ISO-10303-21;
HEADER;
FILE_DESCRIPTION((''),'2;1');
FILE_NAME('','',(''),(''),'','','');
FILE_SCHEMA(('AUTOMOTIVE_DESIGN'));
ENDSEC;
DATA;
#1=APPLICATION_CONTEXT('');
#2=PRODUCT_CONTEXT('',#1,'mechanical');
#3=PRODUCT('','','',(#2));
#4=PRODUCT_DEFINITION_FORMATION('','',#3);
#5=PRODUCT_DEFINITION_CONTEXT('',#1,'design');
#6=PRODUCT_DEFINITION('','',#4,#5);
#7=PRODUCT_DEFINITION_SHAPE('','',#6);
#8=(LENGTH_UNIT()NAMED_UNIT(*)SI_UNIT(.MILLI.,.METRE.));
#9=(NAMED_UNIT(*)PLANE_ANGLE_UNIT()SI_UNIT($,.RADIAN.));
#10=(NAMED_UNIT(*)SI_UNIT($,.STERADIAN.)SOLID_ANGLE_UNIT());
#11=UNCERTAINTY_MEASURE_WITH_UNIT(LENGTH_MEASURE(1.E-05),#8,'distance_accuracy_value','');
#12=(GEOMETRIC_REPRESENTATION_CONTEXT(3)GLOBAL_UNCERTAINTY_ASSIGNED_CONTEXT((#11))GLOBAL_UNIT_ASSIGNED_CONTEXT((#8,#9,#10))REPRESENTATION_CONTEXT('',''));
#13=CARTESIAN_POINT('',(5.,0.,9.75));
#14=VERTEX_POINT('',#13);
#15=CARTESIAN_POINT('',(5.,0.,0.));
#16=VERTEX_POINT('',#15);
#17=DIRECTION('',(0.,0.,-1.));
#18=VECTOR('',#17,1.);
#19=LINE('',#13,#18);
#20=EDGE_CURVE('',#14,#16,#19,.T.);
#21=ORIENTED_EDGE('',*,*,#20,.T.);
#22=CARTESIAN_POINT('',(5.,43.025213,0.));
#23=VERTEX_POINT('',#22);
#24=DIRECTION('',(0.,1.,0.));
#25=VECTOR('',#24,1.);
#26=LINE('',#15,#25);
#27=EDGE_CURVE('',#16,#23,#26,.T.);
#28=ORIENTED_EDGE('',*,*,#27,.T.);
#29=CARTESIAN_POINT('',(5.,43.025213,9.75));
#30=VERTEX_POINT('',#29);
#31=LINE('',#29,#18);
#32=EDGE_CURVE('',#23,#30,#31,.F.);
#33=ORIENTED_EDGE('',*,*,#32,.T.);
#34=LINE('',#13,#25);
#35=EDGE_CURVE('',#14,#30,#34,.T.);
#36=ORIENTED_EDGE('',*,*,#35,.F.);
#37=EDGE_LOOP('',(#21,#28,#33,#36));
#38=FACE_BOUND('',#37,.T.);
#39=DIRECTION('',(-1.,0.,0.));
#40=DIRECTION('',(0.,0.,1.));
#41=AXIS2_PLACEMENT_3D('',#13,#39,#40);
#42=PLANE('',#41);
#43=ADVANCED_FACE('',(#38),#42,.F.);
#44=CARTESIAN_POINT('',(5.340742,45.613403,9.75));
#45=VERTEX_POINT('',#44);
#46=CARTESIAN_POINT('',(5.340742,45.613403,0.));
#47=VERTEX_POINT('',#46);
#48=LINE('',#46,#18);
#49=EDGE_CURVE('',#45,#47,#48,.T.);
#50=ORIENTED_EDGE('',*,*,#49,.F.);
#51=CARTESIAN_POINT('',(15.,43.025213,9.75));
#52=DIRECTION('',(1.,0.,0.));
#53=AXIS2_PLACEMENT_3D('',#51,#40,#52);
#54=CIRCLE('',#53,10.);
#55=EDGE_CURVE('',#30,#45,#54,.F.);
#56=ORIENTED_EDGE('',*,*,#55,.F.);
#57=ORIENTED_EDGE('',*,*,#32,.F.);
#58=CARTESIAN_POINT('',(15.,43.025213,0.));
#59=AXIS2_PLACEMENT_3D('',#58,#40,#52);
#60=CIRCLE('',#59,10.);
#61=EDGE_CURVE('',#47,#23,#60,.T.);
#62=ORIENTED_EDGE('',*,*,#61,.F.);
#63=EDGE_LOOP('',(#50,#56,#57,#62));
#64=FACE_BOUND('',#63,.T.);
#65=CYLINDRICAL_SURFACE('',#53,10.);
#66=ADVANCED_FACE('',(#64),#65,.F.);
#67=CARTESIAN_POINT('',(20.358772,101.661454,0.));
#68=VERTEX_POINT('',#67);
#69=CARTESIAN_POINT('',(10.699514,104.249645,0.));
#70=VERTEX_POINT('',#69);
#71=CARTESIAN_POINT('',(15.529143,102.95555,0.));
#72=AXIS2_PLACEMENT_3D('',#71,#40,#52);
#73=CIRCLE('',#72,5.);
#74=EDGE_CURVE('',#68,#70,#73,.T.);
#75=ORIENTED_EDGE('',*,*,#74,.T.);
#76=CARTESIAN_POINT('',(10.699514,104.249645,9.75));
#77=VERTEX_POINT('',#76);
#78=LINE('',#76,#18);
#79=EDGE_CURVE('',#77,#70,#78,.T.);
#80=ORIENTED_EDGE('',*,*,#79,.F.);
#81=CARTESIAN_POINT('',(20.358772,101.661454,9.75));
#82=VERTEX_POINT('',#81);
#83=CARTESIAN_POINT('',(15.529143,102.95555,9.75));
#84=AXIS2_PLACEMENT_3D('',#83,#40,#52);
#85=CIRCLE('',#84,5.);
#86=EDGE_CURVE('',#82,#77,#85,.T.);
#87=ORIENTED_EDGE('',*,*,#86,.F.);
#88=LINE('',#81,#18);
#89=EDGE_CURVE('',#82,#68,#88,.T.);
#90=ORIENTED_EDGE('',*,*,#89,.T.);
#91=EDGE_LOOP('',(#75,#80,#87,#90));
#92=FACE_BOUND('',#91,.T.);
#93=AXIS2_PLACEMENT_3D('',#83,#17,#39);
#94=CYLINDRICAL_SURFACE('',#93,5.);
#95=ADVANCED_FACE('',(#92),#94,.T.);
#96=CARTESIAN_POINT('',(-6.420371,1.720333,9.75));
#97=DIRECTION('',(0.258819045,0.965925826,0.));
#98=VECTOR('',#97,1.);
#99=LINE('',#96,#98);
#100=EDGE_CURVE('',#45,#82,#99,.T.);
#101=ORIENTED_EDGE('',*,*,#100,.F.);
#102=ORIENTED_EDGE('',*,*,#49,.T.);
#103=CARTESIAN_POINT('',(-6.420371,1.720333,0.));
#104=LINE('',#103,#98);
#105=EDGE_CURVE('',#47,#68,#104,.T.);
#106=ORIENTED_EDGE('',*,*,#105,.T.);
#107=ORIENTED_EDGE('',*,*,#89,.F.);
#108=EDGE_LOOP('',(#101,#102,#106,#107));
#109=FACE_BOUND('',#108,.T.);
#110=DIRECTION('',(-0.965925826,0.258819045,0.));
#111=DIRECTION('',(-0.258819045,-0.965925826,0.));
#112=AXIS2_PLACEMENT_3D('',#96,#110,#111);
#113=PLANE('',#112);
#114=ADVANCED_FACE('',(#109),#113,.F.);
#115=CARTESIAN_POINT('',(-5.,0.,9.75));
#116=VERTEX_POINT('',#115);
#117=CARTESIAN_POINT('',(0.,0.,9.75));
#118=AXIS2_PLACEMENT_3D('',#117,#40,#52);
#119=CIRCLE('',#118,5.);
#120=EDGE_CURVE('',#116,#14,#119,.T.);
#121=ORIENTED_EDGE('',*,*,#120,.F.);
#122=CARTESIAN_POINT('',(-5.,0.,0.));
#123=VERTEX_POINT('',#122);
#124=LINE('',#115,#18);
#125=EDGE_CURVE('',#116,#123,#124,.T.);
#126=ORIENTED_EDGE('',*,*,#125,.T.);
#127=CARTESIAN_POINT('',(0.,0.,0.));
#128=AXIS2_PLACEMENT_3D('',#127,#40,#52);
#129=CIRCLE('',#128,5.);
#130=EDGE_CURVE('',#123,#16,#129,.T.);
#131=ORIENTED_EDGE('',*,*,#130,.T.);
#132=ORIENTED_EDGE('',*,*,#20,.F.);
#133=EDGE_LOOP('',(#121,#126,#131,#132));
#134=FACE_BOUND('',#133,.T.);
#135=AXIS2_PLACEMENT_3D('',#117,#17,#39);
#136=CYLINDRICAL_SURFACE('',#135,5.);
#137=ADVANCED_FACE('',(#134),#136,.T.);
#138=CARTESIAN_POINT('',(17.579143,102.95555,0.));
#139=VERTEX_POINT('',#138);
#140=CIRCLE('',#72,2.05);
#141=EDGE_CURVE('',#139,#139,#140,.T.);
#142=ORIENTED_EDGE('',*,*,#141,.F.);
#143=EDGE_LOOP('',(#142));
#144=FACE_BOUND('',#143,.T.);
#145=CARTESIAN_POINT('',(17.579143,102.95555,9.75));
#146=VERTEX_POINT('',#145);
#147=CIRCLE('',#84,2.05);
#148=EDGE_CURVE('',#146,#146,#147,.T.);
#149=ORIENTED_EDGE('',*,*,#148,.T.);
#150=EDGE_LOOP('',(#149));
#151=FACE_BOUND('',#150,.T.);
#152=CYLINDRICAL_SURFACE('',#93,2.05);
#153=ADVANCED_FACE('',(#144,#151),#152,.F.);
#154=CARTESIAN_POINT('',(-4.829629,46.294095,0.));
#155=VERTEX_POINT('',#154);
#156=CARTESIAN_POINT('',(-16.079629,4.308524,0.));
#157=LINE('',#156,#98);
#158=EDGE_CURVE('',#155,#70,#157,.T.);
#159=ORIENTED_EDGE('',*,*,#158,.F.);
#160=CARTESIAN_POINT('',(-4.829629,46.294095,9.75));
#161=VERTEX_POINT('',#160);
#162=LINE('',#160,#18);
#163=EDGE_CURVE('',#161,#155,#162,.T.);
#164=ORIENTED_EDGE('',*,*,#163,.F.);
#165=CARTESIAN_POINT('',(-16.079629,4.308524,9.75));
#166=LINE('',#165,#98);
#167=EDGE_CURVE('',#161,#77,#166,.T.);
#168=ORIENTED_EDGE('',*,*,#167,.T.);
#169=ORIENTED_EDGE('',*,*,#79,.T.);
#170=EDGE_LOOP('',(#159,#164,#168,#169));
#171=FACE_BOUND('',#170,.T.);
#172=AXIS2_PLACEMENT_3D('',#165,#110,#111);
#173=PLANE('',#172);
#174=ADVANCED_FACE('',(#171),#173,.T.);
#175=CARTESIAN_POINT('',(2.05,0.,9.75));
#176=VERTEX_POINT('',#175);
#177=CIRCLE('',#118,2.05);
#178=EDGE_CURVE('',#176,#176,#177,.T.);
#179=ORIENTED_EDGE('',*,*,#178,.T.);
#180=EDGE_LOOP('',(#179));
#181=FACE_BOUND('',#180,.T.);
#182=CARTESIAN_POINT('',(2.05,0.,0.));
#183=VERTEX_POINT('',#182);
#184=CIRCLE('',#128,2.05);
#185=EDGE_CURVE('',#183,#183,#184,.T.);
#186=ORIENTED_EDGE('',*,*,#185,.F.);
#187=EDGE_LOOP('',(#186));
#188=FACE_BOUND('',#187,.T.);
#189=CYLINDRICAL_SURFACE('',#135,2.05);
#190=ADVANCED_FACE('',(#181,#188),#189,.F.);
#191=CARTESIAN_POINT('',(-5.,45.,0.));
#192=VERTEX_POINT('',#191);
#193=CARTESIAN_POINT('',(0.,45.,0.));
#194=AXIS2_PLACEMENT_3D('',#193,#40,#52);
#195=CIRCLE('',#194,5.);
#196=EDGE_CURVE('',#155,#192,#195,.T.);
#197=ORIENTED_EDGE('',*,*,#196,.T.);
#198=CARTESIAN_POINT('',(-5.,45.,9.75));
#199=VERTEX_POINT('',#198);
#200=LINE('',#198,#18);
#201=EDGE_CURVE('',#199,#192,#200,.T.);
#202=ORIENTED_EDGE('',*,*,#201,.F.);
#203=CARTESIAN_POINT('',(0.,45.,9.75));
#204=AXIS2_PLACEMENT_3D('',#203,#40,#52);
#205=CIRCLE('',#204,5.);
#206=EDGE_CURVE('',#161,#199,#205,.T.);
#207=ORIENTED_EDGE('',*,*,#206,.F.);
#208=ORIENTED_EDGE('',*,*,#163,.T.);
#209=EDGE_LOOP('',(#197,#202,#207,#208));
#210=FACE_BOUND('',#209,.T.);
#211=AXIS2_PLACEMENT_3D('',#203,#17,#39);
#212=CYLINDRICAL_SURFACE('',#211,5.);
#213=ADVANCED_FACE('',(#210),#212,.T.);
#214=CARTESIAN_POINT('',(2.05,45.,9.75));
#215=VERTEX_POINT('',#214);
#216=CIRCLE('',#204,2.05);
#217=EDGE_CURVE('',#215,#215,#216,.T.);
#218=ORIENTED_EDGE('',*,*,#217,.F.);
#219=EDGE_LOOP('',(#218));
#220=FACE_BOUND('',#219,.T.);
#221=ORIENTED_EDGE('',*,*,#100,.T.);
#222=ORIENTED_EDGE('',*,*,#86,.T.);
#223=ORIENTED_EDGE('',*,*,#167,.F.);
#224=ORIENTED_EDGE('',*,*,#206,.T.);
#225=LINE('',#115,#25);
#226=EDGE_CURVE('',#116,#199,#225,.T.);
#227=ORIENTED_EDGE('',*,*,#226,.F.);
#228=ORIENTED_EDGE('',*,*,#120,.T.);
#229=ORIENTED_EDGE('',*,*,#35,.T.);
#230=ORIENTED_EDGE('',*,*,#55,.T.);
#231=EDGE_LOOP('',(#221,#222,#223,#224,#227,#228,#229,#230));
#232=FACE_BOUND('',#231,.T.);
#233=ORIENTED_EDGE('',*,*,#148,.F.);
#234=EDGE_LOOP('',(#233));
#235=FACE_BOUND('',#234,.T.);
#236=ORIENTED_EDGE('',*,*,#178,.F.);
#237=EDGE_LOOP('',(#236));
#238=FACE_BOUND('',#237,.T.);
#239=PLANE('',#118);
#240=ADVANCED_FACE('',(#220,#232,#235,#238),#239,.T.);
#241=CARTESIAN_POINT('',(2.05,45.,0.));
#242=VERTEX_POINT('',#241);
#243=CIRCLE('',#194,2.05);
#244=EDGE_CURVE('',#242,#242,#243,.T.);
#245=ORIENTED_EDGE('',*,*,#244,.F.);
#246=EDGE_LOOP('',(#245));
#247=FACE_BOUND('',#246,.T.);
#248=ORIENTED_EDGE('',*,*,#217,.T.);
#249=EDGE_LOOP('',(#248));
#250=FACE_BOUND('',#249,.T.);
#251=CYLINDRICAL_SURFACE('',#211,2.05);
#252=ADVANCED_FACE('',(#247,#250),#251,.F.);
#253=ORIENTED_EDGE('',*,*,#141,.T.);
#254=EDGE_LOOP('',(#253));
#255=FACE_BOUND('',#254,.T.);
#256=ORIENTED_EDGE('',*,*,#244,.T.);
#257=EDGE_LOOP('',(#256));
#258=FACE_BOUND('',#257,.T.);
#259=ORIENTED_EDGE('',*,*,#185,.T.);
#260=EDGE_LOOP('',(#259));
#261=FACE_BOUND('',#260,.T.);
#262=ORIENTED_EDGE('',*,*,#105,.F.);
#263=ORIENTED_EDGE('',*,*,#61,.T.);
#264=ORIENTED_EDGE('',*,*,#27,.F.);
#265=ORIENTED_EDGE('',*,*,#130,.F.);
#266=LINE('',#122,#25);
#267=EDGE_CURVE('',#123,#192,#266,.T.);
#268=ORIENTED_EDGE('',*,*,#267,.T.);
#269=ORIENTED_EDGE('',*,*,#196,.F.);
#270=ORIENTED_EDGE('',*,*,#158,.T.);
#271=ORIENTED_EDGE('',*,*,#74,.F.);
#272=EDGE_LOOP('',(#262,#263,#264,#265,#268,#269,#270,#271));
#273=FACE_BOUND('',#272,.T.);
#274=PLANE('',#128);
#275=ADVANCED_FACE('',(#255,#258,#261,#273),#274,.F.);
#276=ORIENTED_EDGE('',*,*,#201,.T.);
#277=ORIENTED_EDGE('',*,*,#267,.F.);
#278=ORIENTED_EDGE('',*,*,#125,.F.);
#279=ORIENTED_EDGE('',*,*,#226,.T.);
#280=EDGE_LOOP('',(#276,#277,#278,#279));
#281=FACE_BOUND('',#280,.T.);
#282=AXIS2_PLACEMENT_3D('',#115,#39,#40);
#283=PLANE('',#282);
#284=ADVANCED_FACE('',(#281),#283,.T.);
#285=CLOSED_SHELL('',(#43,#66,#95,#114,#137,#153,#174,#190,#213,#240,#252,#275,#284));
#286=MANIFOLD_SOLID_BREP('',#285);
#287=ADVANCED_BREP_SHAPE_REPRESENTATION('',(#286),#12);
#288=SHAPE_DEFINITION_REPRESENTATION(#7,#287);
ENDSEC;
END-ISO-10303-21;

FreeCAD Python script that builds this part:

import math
import FreeCAD as App
import Part
import Sketcher
Q = App.Units.Quantity


def edges_at(feature, points):
    """Names of the edges that pass closest to the given points."""
    edges = feature.Shape.Edges
    near = lambda p: min(range(len(edges)), key=lambda i: edges[i].distToShape(Part.Vertex(*p))[0])
    return sorted({f"Edge{near(p) + 1}" for p in points})

doc = App.newDocument("Part")
body = doc.addObject("PartDesign::Body", "Body")

sketch1 = body.newObject("Sketcher::SketchObject", "Sketch")
sketch1.AttachmentSupport = (doc.getObject("XY_Plane"), [""])
sketch1.MapMode = "FlatFace"
sketch1.addGeometry(Part.LineSegment(App.Vector(10.7, 104.2, 0), App.Vector(-4.8, 46.3, 0)), False)
sketch1.addGeometry(Part.ArcOfCircle(Part.Circle(App.Vector(0, 45, 0), App.Vector(0, 0, 1), 5), math.radians(165), math.radians(180)), False)
sketch1.addGeometry(Part.LineSegment(App.Vector(-5, 45, 0), App.Vector(-5, 0, 0)), False)
sketch1.addGeometry(Part.ArcOfCircle(Part.Circle(App.Vector(0, 0, 0), App.Vector(0, 0, 1), 5), math.radians(180), math.radians(360)), False)
sketch1.addGeometry(Part.LineSegment(App.Vector(5, 0, 0), App.Vector(5, 44.3, 0)), False)
sketch1.addGeometry(Part.LineSegment(App.Vector(5, 44.3, 0), App.Vector(20.4, 101.7, 0)), False)
sketch1.addGeometry(Part.ArcOfCircle(Part.Circle(App.Vector(15.5, 103, 0), App.Vector(0, 0, 1), 5), math.radians(-15), math.radians(165)), False)
sketch1.addGeometry(Part.Circle(App.Vector(15.5, 103, 0), App.Vector(0, 0, 1), 2), False)
sketch1.addGeometry(Part.Circle(App.Vector(0, 45, 0), App.Vector(0, 0, 1), 2), False)
sketch1.addGeometry(Part.Circle(App.Vector(0, 0, 0), App.Vector(0, 0, 1), 2), False)
sketch1.addConstraint(Sketcher.Constraint("Tangent", 0, 2, 1, 1))
sketch1.addConstraint(Sketcher.Constraint("Tangent", 1, 2, 2, 1))
sketch1.addConstraint(Sketcher.Constraint("Tangent", 2, 2, 3, 1))
sketch1.addConstraint(Sketcher.Constraint("Tangent", 3, 2, 4, 1))
sketch1.addConstraint(Sketcher.Constraint("Coincident", 4, 2, 5, 1))
sketch1.addConstraint(Sketcher.Constraint("Tangent", 5, 2, 6, 1))
sketch1.addConstraint(Sketcher.Constraint("Tangent", 6, 2, 0, 1))
sketch1.addConstraint(Sketcher.Constraint("Vertical", 2))
sketch1.addConstraint(Sketcher.Constraint("Vertical", 4))
sketch1.addConstraint(Sketcher.Constraint("Coincident", 3, 3, -1, 1))
sketch1.addConstraint(Sketcher.Constraint("Coincident", 9, 3, -1, 1))
sketch1.addConstraint(Sketcher.Constraint("Coincident", 7, 3, 6, 3))
sketch1.addConstraint(Sketcher.Constraint("Coincident", 8, 3, 1, 3))
sketch1.addConstraint(Sketcher.Constraint("Equal", 1, 3))
sketch1.addConstraint(Sketcher.Constraint("Equal", 3, 6))
sketch1.addConstraint(Sketcher.Constraint("Equal", 7, 8))
sketch1.addConstraint(Sketcher.Constraint("Equal", 8, 9))
sketch1.addConstraint(Sketcher.Constraint("Parallel", 0, 5))
sketch1.addConstraint(Sketcher.Constraint("Radius", 1, Q("5 mm")))
sketch1.addConstraint(Sketcher.Constraint("Diameter", 7, Q("4.1 mm")))
sketch1.addConstraint(Sketcher.Constraint("DistanceY", 2, 2, 2, 1, Q("45 mm")))
sketch1.addConstraint(Sketcher.Constraint("Angle", 0, Q("-105 deg")))
sketch1.addConstraint(Sketcher.Constraint("Distance", 0, Q("60 mm")))
pad1 = body.newObject("PartDesign::Pad", "Pad")
pad1.Profile = sketch1
pad1.Length = 9.75
doc.recompute()

fillet = body.newObject("PartDesign::Fillet", "Fillet")
fillet.Base = (pad1, edges_at(pad1, [(5, 44.342, 4.875)]))
fillet.Radius = 10

doc.recompute()
